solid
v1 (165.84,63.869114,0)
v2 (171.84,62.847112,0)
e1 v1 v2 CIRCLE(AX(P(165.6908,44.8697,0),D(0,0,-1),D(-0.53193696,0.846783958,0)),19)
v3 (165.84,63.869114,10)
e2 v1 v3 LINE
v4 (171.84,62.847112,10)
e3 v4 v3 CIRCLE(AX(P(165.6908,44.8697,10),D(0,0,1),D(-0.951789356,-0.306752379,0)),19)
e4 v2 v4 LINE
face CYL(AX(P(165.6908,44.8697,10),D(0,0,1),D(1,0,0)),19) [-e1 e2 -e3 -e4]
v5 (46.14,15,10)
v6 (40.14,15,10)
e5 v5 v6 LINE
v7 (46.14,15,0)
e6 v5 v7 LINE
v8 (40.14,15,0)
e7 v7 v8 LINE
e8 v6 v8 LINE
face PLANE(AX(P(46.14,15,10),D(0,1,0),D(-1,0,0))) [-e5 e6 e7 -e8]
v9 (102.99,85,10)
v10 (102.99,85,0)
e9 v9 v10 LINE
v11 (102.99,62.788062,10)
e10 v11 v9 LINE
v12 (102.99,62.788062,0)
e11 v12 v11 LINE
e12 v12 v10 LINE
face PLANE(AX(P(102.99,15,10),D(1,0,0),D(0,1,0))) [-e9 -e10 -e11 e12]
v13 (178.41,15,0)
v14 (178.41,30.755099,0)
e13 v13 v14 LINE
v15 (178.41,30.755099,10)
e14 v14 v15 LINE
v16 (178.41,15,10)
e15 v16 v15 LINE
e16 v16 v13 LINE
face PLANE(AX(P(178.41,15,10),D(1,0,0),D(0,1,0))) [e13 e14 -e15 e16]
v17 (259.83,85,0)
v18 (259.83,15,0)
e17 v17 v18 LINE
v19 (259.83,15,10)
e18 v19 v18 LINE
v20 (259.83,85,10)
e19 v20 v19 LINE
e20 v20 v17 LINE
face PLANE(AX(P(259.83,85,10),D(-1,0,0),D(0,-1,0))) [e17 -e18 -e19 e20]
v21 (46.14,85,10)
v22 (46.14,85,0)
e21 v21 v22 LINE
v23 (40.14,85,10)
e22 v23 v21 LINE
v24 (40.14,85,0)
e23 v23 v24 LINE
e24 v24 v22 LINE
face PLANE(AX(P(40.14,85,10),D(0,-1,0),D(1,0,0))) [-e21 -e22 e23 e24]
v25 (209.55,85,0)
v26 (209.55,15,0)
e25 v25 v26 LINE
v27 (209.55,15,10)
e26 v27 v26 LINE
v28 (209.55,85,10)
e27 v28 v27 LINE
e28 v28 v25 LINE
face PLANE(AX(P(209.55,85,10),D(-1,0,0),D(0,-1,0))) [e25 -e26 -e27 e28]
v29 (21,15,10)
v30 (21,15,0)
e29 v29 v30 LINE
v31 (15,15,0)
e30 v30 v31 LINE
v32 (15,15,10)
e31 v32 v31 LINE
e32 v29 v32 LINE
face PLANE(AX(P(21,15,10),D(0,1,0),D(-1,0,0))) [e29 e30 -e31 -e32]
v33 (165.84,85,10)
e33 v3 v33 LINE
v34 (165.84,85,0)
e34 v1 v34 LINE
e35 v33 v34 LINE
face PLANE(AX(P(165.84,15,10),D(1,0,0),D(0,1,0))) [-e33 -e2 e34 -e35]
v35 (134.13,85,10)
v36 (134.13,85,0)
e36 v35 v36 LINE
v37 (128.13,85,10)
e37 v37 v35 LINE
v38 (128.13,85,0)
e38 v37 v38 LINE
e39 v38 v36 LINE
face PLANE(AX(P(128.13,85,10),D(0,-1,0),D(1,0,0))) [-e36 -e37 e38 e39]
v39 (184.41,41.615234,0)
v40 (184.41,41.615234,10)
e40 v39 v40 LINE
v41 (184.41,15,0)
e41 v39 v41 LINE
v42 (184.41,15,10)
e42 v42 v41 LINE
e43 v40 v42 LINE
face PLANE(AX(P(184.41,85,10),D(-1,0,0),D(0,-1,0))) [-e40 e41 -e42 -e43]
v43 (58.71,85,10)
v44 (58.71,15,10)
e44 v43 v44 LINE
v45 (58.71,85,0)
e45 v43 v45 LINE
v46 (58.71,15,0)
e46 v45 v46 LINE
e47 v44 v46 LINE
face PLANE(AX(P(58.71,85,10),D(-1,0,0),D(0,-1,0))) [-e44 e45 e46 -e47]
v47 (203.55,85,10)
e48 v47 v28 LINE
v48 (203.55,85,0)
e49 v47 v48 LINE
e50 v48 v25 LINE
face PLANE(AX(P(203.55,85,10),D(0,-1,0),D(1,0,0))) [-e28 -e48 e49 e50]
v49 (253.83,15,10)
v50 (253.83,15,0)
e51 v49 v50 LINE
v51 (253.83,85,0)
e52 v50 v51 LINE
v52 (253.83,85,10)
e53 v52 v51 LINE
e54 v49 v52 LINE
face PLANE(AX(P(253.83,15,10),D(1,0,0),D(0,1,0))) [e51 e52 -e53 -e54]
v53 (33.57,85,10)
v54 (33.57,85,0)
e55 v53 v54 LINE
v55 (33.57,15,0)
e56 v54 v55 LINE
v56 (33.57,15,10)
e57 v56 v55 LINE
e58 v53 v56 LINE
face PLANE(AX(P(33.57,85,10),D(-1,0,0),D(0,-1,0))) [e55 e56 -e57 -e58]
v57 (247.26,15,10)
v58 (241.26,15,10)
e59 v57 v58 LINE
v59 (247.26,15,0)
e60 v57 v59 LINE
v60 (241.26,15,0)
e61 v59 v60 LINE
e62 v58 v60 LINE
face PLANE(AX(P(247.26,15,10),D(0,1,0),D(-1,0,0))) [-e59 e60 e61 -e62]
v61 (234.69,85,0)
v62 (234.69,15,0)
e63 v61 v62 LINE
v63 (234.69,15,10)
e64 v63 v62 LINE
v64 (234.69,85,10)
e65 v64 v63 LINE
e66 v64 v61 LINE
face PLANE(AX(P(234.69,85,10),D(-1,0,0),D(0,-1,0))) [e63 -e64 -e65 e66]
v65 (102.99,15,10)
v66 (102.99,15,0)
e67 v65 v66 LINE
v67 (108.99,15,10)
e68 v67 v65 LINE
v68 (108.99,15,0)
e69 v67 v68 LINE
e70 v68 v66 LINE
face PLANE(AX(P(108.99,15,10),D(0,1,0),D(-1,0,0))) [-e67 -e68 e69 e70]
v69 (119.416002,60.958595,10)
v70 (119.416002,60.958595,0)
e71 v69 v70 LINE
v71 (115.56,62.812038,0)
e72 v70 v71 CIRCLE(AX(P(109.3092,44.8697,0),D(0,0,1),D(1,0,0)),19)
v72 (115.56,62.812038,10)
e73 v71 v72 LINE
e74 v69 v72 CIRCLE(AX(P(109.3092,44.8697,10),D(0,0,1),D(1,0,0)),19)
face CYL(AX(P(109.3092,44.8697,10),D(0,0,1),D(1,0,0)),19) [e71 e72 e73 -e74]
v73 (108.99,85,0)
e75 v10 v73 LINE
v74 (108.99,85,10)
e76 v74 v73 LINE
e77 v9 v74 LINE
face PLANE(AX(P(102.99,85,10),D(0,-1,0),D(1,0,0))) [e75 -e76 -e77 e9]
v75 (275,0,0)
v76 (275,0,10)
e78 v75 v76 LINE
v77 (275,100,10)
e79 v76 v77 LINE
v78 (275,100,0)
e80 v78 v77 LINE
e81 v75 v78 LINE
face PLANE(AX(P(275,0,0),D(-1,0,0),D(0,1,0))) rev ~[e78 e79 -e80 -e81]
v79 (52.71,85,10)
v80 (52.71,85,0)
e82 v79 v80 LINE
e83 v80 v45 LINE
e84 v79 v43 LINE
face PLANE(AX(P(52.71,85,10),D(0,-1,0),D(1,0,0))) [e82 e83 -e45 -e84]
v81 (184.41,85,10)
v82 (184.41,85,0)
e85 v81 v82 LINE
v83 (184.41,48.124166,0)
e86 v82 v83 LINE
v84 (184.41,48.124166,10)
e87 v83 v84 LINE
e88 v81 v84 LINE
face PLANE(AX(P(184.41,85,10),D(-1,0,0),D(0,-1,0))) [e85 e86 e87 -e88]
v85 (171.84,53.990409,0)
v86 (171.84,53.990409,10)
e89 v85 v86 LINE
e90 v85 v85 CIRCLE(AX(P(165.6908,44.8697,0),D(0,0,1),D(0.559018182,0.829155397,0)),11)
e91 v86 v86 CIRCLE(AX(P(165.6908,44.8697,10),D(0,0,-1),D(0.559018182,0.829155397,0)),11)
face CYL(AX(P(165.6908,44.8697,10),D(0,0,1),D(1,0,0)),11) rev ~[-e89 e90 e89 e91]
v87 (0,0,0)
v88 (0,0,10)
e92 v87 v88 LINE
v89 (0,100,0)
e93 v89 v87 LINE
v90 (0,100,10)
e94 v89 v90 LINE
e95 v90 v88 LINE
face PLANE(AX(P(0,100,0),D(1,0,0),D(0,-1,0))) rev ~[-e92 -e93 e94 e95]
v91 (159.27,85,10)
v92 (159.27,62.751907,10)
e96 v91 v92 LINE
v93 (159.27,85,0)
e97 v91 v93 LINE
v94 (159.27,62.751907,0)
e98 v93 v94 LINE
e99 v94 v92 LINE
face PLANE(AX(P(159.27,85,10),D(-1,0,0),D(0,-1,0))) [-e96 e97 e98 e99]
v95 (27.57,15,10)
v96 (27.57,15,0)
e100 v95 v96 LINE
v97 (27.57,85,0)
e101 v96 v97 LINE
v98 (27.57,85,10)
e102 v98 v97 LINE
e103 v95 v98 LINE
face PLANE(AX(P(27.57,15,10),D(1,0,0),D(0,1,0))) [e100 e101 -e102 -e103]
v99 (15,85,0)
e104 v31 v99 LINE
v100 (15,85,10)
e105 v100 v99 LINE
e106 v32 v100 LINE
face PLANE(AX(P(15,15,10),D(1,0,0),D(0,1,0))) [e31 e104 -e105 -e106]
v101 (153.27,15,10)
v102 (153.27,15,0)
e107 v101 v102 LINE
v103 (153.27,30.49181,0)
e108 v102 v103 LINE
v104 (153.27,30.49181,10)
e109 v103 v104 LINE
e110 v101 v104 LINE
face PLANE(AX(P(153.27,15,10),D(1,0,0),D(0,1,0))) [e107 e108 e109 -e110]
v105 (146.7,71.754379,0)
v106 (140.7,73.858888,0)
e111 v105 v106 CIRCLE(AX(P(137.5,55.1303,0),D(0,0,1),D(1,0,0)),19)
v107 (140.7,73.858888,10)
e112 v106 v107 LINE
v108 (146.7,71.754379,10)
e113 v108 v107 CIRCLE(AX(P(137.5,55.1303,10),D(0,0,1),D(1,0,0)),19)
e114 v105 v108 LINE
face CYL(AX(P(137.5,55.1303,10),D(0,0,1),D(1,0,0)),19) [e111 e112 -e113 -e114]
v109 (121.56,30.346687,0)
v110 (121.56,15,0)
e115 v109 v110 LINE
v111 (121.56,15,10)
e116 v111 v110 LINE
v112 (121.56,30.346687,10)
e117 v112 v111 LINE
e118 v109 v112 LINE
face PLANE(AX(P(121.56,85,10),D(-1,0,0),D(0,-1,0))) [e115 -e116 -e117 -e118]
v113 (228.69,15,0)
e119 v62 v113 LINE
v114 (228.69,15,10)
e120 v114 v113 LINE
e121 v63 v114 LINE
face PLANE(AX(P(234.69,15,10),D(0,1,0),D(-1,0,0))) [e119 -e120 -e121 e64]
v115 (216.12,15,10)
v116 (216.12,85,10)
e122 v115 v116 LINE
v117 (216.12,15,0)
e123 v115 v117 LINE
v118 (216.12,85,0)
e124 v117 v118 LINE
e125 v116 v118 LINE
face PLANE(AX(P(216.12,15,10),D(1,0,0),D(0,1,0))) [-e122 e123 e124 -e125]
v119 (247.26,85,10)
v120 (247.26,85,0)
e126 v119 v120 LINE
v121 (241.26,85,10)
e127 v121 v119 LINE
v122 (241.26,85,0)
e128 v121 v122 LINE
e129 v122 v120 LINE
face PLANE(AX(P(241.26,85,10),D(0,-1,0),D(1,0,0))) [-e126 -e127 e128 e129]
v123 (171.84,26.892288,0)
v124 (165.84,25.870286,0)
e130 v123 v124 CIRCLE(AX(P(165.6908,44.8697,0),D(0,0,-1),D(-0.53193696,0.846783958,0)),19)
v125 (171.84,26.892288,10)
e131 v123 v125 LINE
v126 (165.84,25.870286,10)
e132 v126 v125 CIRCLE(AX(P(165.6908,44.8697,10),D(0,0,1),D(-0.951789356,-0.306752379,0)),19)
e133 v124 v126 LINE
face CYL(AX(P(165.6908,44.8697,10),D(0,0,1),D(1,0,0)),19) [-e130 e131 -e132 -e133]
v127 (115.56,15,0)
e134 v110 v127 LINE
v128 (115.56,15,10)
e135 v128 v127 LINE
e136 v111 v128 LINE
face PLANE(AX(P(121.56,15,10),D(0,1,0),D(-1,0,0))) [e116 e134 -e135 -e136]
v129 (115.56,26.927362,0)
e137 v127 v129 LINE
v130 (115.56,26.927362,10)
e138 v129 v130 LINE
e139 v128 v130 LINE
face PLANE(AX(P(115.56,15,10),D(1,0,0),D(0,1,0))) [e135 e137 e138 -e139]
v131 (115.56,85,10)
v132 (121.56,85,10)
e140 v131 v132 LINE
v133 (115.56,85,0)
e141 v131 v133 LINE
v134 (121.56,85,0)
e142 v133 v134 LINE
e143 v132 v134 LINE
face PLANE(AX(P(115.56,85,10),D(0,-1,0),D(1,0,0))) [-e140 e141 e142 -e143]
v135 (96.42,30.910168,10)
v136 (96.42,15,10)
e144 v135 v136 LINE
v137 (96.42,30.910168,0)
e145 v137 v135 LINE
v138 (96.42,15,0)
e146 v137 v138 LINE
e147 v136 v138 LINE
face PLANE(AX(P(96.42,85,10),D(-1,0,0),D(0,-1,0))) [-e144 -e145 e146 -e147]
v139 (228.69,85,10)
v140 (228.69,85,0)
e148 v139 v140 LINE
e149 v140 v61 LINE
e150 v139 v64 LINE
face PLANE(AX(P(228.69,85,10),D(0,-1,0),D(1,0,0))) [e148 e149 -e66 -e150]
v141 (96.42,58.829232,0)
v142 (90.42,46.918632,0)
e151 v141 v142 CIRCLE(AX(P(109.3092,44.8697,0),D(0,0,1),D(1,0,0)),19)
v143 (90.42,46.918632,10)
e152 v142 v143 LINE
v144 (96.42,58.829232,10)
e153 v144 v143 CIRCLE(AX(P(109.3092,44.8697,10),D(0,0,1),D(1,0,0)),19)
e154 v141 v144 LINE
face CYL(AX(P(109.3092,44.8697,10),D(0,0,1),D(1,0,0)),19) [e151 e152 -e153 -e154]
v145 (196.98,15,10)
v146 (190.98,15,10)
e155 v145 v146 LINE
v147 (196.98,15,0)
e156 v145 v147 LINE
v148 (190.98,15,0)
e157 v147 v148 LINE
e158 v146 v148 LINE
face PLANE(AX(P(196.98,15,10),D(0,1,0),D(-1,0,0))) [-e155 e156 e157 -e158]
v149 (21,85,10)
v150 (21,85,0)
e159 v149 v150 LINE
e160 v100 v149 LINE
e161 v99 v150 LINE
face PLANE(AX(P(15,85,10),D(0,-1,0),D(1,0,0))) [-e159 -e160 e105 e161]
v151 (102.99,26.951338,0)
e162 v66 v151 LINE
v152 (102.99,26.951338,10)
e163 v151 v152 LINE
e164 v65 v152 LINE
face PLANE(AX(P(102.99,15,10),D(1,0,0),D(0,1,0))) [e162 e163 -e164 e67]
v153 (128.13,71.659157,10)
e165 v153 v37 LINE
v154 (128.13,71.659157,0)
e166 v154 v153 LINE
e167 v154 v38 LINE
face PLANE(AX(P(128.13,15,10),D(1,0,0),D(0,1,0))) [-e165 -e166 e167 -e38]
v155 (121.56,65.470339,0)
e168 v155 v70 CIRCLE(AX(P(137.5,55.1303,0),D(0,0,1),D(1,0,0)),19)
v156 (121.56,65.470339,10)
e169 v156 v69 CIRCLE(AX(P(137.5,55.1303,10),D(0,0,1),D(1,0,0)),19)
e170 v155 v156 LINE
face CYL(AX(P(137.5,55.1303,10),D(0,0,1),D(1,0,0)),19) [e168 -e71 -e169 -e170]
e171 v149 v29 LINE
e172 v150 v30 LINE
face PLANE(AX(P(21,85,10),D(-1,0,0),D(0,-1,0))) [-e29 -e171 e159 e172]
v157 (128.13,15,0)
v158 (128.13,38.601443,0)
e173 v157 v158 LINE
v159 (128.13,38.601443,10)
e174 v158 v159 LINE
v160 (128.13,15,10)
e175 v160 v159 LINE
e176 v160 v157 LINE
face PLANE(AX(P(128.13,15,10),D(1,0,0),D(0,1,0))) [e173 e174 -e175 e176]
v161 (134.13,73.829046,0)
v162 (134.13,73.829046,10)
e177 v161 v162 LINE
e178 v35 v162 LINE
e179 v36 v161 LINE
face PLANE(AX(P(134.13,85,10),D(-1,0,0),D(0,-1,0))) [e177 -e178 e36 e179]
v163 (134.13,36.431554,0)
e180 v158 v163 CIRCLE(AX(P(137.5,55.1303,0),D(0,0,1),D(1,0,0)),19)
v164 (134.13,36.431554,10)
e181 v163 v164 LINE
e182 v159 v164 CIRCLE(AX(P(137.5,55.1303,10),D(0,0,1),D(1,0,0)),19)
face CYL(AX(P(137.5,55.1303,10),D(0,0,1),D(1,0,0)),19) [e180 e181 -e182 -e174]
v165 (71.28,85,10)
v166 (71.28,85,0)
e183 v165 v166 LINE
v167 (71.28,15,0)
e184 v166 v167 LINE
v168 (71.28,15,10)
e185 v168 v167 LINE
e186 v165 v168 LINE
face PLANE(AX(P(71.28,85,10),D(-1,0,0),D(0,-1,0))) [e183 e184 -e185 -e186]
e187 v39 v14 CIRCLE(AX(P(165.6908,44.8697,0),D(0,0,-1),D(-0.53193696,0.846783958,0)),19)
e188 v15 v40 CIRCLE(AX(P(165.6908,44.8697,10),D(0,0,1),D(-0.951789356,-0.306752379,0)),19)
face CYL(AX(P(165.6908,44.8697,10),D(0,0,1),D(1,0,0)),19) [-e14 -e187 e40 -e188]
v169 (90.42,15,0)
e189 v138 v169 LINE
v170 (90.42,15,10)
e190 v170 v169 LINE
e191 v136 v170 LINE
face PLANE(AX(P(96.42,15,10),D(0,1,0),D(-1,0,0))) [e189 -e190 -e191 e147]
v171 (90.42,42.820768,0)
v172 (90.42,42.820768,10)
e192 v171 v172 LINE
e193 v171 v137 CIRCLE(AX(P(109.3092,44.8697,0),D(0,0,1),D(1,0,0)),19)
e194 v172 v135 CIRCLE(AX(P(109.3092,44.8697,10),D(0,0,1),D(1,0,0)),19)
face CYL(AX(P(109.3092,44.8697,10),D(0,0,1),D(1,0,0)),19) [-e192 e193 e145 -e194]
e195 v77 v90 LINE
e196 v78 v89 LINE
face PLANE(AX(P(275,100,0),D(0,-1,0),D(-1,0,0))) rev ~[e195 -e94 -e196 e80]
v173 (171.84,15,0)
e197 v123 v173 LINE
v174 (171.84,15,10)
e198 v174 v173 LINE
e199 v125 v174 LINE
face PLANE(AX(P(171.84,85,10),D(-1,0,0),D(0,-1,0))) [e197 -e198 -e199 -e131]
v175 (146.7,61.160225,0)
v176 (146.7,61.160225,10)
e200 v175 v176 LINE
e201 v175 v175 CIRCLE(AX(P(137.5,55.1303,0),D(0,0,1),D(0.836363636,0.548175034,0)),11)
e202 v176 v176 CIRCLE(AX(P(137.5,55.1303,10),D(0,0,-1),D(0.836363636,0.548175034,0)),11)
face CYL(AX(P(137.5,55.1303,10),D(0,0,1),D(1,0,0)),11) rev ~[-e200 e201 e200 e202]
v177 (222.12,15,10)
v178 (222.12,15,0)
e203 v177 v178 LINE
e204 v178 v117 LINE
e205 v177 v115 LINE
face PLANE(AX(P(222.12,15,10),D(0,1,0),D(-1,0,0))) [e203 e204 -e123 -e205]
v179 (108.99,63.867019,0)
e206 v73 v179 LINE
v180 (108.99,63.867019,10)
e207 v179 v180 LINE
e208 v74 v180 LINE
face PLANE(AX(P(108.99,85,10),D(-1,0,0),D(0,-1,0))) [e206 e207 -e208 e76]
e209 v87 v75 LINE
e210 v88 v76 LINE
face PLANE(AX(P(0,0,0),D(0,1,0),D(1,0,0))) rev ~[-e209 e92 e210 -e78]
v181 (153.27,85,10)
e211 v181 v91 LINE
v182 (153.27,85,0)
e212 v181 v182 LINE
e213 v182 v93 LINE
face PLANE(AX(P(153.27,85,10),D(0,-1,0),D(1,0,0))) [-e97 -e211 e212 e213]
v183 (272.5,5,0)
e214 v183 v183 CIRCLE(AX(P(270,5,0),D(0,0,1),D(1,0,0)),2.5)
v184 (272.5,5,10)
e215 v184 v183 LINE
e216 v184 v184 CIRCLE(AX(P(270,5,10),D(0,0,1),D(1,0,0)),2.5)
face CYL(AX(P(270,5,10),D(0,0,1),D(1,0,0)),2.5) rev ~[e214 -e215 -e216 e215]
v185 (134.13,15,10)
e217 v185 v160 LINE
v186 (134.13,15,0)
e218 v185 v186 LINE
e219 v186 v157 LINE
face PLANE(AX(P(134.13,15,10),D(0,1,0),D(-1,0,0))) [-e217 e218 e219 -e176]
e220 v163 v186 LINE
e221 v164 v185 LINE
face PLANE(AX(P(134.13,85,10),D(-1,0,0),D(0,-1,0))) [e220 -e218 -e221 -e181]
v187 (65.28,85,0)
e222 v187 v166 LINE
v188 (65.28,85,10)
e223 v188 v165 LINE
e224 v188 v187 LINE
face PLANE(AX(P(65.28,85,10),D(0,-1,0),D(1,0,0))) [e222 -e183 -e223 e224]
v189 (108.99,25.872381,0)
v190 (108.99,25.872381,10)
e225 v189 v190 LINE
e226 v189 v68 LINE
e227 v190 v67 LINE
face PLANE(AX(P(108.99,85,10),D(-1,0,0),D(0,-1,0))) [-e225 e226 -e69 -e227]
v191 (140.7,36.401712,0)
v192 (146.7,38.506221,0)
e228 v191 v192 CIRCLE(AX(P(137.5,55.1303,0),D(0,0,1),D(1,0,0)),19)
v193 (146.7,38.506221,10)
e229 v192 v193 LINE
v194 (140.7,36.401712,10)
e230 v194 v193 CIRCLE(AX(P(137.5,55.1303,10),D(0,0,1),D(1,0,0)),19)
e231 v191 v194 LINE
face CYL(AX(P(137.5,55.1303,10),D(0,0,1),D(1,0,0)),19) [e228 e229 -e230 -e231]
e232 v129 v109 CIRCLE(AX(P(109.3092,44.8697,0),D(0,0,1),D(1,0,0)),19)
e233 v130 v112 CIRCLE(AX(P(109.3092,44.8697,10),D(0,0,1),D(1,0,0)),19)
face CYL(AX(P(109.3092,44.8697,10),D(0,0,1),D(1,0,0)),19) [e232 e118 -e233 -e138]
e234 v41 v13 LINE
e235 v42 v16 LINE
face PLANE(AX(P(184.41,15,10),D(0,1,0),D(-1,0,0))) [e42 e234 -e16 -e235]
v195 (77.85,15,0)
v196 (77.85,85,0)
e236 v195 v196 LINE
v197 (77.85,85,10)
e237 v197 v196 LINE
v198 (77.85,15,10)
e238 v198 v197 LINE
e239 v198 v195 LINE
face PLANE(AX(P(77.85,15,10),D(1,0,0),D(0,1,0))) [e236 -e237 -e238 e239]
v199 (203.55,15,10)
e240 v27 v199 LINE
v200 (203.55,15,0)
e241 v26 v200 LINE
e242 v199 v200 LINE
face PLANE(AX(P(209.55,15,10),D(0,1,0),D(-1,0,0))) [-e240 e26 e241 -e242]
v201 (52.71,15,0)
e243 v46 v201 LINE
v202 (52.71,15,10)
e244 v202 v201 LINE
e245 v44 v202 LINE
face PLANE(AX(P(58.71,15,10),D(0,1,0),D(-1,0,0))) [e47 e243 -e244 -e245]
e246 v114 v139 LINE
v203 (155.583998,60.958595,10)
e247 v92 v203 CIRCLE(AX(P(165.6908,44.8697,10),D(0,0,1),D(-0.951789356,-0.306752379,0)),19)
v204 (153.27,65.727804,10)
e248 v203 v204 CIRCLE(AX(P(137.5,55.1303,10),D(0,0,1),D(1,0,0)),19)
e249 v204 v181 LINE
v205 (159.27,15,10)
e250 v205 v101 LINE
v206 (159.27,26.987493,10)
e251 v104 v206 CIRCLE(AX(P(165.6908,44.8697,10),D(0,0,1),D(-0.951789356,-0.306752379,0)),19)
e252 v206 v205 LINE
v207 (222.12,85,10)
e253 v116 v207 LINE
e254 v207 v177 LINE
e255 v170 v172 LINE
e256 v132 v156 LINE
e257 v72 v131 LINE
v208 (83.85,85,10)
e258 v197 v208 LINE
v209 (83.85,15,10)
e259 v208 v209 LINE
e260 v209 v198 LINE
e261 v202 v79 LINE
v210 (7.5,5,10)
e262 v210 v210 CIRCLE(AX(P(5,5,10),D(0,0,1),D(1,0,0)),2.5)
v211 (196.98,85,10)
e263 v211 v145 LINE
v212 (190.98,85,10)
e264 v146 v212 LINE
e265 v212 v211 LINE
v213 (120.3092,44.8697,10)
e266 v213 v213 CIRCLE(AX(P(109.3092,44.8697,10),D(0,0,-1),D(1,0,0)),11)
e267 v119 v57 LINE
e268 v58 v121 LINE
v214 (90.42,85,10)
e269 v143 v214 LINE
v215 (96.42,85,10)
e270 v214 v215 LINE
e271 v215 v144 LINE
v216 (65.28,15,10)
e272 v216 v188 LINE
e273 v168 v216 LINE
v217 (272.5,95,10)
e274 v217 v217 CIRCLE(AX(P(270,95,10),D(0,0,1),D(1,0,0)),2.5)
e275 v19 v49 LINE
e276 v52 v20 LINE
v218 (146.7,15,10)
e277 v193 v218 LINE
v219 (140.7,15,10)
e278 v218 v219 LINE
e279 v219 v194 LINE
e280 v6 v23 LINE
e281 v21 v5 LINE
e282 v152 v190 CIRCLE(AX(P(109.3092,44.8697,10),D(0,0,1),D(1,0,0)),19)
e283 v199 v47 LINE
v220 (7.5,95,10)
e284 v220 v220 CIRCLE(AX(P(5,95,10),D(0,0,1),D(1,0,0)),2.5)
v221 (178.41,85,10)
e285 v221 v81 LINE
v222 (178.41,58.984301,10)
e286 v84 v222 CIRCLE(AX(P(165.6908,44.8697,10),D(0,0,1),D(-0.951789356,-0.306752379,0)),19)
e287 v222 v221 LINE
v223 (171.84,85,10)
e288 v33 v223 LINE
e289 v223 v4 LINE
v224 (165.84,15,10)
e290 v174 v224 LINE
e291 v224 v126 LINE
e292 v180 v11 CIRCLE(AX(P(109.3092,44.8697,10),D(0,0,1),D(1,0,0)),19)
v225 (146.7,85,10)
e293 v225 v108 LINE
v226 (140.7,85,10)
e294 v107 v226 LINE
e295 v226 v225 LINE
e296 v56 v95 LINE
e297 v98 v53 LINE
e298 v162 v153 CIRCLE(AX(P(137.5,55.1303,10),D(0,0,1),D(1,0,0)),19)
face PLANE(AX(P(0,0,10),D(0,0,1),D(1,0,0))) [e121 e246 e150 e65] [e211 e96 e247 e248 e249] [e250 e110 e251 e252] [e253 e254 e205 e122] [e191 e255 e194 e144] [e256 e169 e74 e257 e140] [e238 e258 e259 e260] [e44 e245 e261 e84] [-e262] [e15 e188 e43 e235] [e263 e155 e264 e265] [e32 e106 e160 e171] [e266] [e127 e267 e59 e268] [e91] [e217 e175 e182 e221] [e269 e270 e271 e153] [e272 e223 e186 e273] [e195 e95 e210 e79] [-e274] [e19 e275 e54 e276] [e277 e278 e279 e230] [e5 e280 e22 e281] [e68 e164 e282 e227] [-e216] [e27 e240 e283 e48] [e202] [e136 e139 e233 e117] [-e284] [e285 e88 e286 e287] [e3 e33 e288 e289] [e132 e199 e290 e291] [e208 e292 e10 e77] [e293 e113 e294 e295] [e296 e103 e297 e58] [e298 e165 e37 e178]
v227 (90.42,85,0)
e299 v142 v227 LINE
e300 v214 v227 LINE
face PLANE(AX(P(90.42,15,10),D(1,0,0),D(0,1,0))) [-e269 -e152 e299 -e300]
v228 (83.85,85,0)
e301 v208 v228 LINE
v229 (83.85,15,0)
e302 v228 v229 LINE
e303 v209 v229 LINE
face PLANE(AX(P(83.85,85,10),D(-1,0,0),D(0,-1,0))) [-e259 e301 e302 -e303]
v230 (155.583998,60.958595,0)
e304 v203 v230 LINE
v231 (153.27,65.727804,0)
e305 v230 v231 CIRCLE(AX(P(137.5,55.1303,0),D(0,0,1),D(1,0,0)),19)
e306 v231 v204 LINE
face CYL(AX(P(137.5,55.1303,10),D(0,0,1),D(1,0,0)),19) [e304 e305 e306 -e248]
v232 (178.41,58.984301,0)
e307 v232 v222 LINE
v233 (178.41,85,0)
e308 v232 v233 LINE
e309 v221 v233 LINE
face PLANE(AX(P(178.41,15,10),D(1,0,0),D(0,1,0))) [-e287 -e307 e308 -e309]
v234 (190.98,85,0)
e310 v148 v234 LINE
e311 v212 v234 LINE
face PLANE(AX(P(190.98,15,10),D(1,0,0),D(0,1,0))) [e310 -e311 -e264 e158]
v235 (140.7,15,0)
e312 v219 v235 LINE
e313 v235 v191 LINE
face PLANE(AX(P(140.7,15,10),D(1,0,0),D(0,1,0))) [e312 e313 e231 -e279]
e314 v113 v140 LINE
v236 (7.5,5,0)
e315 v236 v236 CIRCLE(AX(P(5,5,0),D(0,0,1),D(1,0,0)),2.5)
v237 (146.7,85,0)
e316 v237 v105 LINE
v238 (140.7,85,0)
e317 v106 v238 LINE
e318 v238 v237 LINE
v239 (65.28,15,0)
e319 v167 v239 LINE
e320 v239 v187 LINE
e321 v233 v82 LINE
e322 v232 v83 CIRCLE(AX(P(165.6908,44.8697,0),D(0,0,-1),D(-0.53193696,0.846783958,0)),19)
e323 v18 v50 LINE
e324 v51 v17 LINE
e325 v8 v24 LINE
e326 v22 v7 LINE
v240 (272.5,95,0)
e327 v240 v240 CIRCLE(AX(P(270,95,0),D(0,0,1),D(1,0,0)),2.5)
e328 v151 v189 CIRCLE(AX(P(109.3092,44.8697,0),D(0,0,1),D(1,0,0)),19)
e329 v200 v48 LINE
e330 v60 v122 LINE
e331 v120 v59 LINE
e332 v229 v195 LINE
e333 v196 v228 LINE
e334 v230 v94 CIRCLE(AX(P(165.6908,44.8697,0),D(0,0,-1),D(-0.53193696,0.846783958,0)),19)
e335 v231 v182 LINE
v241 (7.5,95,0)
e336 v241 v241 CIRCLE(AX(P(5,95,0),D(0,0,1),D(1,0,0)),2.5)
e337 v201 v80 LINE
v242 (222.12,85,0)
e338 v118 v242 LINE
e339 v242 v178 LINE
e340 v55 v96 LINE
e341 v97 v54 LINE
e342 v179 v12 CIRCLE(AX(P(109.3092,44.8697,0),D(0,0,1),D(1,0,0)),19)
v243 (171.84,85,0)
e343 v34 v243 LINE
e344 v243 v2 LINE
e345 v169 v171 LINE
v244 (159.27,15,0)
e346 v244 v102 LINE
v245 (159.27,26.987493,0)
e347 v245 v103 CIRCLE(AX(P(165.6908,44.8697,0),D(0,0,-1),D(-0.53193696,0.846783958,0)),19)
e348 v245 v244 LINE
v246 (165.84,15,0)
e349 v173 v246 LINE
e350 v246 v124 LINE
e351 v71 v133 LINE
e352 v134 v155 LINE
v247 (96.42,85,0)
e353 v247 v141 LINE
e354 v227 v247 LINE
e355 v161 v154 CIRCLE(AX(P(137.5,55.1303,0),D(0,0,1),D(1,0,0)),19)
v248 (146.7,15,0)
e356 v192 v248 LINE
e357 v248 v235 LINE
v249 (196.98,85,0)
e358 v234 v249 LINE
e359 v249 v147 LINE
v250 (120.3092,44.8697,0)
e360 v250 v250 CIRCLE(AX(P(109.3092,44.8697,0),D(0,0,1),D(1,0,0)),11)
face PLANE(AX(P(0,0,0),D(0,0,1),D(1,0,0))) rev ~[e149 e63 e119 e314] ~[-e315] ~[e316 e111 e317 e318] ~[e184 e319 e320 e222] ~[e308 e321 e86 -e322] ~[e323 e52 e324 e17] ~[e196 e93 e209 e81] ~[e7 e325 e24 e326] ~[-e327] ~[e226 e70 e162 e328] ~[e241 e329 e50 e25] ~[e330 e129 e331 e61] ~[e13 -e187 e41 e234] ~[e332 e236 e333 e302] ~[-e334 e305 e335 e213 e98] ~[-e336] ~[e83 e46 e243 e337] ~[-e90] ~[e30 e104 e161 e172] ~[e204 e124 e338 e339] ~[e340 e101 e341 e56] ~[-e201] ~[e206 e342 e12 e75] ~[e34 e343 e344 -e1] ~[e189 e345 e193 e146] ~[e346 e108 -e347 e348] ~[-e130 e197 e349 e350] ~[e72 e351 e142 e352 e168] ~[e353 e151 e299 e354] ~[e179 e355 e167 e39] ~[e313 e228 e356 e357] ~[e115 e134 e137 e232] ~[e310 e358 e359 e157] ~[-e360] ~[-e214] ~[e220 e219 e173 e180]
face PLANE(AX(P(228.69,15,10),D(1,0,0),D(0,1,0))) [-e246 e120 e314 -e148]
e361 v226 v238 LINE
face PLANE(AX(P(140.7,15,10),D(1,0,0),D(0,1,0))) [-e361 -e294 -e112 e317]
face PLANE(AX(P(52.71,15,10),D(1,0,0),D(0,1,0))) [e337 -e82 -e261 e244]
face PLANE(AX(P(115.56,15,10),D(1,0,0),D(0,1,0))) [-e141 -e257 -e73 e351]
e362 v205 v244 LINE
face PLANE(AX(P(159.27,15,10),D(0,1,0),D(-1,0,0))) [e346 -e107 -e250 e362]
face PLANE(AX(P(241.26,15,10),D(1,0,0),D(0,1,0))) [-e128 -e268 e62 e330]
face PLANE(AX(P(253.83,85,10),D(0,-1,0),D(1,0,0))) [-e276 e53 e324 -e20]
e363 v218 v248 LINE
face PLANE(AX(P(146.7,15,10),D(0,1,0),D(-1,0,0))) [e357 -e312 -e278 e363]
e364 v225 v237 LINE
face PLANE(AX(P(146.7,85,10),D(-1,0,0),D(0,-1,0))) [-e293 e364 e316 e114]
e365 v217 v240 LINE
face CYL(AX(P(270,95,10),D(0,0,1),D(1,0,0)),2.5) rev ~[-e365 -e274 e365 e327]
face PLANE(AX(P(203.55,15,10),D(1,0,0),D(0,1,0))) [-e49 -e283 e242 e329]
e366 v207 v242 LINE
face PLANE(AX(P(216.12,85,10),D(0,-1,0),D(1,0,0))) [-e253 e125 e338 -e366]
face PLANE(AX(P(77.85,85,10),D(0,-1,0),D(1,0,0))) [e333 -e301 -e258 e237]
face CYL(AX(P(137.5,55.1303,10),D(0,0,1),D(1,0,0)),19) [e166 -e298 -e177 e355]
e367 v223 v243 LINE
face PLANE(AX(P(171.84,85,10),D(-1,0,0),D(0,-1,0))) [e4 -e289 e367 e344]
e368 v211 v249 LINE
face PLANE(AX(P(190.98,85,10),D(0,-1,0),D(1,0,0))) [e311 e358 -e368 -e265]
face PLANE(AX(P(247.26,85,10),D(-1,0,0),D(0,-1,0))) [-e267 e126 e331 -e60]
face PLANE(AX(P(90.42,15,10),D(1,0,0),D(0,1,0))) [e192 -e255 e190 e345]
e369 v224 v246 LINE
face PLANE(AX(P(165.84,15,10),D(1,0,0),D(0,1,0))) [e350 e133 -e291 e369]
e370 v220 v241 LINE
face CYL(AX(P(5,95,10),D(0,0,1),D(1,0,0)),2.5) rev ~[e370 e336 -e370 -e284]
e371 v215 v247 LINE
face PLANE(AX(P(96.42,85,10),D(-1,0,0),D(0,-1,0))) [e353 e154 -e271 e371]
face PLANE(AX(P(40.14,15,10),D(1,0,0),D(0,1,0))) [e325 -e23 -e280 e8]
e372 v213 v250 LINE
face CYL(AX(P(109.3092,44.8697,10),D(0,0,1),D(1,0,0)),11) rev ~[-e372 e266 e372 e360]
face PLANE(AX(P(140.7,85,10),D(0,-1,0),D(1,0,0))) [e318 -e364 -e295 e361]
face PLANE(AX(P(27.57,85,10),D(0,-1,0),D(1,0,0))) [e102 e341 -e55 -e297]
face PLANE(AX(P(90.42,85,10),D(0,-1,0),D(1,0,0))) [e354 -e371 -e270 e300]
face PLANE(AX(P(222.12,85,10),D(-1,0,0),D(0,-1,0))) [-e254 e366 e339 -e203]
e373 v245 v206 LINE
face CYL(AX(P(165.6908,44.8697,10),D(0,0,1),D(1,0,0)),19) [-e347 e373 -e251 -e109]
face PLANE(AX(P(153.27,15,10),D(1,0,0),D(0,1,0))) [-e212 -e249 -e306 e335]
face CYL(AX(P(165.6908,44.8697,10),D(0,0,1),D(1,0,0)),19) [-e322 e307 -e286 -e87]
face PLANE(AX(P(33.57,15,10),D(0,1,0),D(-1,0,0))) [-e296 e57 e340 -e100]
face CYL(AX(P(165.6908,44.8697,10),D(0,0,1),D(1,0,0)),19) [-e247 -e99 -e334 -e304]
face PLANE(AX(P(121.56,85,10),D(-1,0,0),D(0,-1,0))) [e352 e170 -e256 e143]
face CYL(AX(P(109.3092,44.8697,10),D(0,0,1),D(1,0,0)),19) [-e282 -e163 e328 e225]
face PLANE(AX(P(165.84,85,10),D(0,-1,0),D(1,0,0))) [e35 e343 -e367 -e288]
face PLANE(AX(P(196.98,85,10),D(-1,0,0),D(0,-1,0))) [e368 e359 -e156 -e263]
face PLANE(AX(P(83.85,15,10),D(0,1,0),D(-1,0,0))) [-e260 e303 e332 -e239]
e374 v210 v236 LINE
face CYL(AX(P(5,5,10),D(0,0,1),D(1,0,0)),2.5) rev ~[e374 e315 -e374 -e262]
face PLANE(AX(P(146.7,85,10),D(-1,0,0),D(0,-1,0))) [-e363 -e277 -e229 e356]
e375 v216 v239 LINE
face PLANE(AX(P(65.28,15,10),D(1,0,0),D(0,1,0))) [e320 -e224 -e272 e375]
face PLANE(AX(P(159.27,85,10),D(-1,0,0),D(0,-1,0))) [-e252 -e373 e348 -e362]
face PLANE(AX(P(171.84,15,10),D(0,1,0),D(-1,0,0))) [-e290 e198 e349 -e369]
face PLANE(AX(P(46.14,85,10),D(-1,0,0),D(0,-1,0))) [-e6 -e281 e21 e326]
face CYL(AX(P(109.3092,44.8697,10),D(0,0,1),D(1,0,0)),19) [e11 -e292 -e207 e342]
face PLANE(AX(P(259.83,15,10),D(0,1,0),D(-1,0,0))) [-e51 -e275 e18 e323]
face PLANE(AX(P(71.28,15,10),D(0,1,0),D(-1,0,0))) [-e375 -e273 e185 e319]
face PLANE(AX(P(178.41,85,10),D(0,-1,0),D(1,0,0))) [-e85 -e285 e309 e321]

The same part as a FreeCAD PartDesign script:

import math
import FreeCAD as App
import Part
import Sketcher

V = App.Vector

doc = App.newDocument("Part")
body = doc.addObject("PartDesign::Body", "Body")

sketch1 = doc.addObject("Sketcher::SketchObject", "Sketch")
body.addObject(sketch1)
sketch1.AttachmentSupport = (doc.XY_Plane, [""])
sketch1.MapMode = "FlatFace"
sketch1.addGeometry([
    Part.LineSegment(V(0, 100, 0), V(0, 0, 0)),
    Part.LineSegment(V(0, 0, 0), V(275, 0, 0)),
    Part.LineSegment(V(275, 0, 0), V(275, 100, 0)),
    Part.LineSegment(V(275, 100, 0), V(0, 100, 0)),
], False)
sketch1.addConstraint([
    Sketcher.Constraint("Coincident", 0, 2, 1, 1),
    Sketcher.Constraint("Coincident", 1, 2, 2, 1),
    Sketcher.Constraint("Coincident", 2, 2, 3, 1),
    Sketcher.Constraint("Coincident", 3, 2, 0, 1),
    Sketcher.Constraint("Vertical", 0),
    Sketcher.Constraint("Horizontal", 1),
    Sketcher.Constraint("Vertical", 2),
    Sketcher.Constraint("Horizontal", 3),
    Sketcher.Constraint("Coincident", 0, 2, -1, 1),
    Sketcher.Constraint("DistanceX", 1, 1, 1, 2, 275.0),
    Sketcher.Constraint("DistanceY", 0, 2, 0, 1, 100.0),
])
pad1 = doc.addObject("PartDesign::Pad", "Pad")
body.addObject(pad1)
pad1.Profile = sketch1
pad1.Length = 10

sketch2 = doc.addObject("Sketcher::SketchObject", "Sketch001")
body.addObject(sketch2)
sketch2.AttachmentSupport = (doc.XY_Plane, [""])
sketch2.MapMode = "FlatFace"
sketch2.AttachmentOffset = App.Placement(V(0, 0, 10), App.Rotation())
sketch2.addGeometry([
    Part.Circle(V(5, 95, 0), V(0, 0, 1), 2.5),
    Part.Circle(V(270, 95, 0), V(0, 0, 1), 2.5),
    Part.Circle(V(270, 5, 0), V(0, 0, 1), 2.5),
    Part.Circle(V(5, 5, 0), V(0, 0, 1), 2.5),
    Part.LineSegment(V(21, 85, 0), V(15, 85, 0)),
    Part.LineSegment(V(15, 85, 0), V(15, 15, 0)),
    Part.LineSegment(V(15, 15, 0), V(21, 15, 0)),
    Part.LineSegment(V(21, 15, 0), V(21, 85, 0)),
    Part.LineSegment(V(33.6, 15, 0), V(33.6, 85, 0)),
    Part.LineSegment(V(33.6, 85, 0), V(27.6, 85, 0)),
    Part.LineSegment(V(27.6, 85, 0), V(27.6, 15, 0)),
    Part.LineSegment(V(27.6, 15, 0), V(33.6, 15, 0)),
    Part.LineSegment(V(46.1, 15, 0), V(46.1, 85, 0)),
    Part.LineSegment(V(46.1, 85, 0), V(40.1, 85, 0)),
    Part.LineSegment(V(40.1, 85, 0), V(40.1, 15, 0)),
    Part.LineSegment(V(40.1, 15, 0), V(46.1, 15, 0)),
    Part.LineSegment(V(58.7, 15, 0), V(58.7, 85, 0)),
    Part.LineSegment(V(58.7, 85, 0), V(52.7, 85, 0)),
    Part.LineSegment(V(52.7, 85, 0), V(52.7, 15, 0)),
    Part.LineSegment(V(52.7, 15, 0), V(58.7, 15, 0)),
    Part.LineSegment(V(71.3, 15, 0), V(71.3, 85, 0)),
    Part.LineSegment(V(71.3, 85, 0), V(65.3, 85, 0)),
    Part.LineSegment(V(65.3, 85, 0), V(65.3, 15, 0)),
    Part.LineSegment(V(65.3, 15, 0), V(71.3, 15, 0)),
    Part.LineSegment(V(83.8, 15, 0), V(83.8, 85, 0)),
    Part.LineSegment(V(83.8, 85, 0), V(77.8, 85, 0)),
    Part.LineSegment(V(77.8, 85, 0), V(77.8, 15, 0)),
    Part.LineSegment(V(77.8, 15, 0), V(83.8, 15, 0)),
    Part.LineSegment(V(96.4, 15, 0), V(96.4, 85, 0)),
    Part.LineSegment(V(96.4, 85, 0), V(90.4, 85, 0)),
    Part.LineSegment(V(90.4, 85, 0), V(90.4, 15, 0)),
    Part.LineSegment(V(90.4, 15, 0), V(96.4, 15, 0)),
    Part.LineSegment(V(109, 15, 0), V(109, 85, 0)),
    Part.LineSegment(V(109, 85, 0), V(103, 85, 0)),
    Part.LineSegment(V(103, 85, 0), V(103, 15, 0)),
    Part.LineSegment(V(103, 15, 0), V(109, 15, 0)),
    Part.LineSegment(V(121.6, 15, 0), V(121.6, 85, 0)),
    Part.LineSegment(V(121.6, 85, 0), V(115.6, 85, 0)),
    Part.LineSegment(V(115.6, 85, 0), V(115.6, 15, 0)),
    Part.LineSegment(V(115.6, 15, 0), V(121.6, 15, 0)),
    Part.LineSegment(V(134.1, 15, 0), V(134.1, 85, 0)),
    Part.LineSegment(V(134.1, 85, 0), V(128.1, 85, 0)),
    Part.LineSegment(V(128.1, 85, 0), V(128.1, 15, 0)),
    Part.LineSegment(V(128.1, 15, 0), V(134.1, 15, 0)),
    Part.LineSegment(V(146.7, 15, 0), V(146.7, 85, 0)),
    Part.LineSegment(V(146.7, 85, 0), V(140.7, 85, 0)),
    Part.LineSegment(V(140.7, 85, 0), V(140.7, 15, 0)),
    Part.LineSegment(V(140.7, 15, 0), V(146.7, 15, 0)),
    Part.LineSegment(V(159.3, 15, 0), V(159.3, 85, 0)),
    Part.LineSegment(V(159.3, 85, 0), V(153.3, 85, 0)),
    Part.LineSegment(V(153.3, 85, 0), V(153.3, 15, 0)),
    Part.LineSegment(V(153.3, 15, 0), V(159.3, 15, 0)),
    Part.LineSegment(V(171.8, 15, 0), V(171.8, 85, 0)),
    Part.LineSegment(V(171.8, 85, 0), V(165.8, 85, 0)),
    Part.LineSegment(V(165.8, 85, 0), V(165.8, 15, 0)),
    Part.LineSegment(V(165.8, 15, 0), V(171.8, 15, 0)),
    Part.LineSegment(V(184.4, 15, 0), V(184.4, 85, 0)),
    Part.LineSegment(V(184.4, 85, 0), V(178.4, 85, 0)),
    Part.LineSegment(V(178.4, 85, 0), V(178.4, 15, 0)),
    Part.LineSegment(V(178.4, 15, 0), V(184.4, 15, 0)),
    Part.LineSegment(V(197, 15, 0), V(197, 85, 0)),
    Part.LineSegment(V(197, 85, 0), V(191, 85, 0)),
    Part.LineSegment(V(191, 85, 0), V(191, 15, 0)),
    Part.LineSegment(V(191, 15, 0), V(197, 15, 0)),
    Part.LineSegment(V(209.6, 15, 0), V(209.6, 85, 0)),
    Part.LineSegment(V(209.6, 85, 0), V(203.6, 85, 0)),
    Part.LineSegment(V(203.6, 85, 0), V(203.6, 15, 0)),
    Part.LineSegment(V(203.6, 15, 0), V(209.6, 15, 0)),
    Part.LineSegment(V(222.1, 15, 0), V(222.1, 85, 0)),
    Part.LineSegment(V(222.1, 85, 0), V(216.1, 85, 0)),
    Part.LineSegment(V(216.1, 85, 0), V(216.1, 15, 0)),
    Part.LineSegment(V(216.1, 15, 0), V(222.1, 15, 0)),
    Part.LineSegment(V(234.7, 15, 0), V(234.7, 85, 0)),
    Part.LineSegment(V(234.7, 85, 0), V(228.7, 85, 0)),
    Part.LineSegment(V(228.7, 85, 0), V(228.7, 15, 0)),
    Part.LineSegment(V(228.7, 15, 0), V(234.7, 15, 0)),
    Part.LineSegment(V(247.3, 15, 0), V(247.3, 85, 0)),
    Part.LineSegment(V(247.3, 85, 0), V(241.3, 85, 0)),
    Part.LineSegment(V(241.3, 85, 0), V(241.3, 15, 0)),
    Part.LineSegment(V(241.3, 15, 0), V(247.3, 15, 0)),
    Part.LineSegment(V(259.8, 15, 0), V(259.8, 85, 0)),
    Part.LineSegment(V(259.8, 85, 0), V(253.8, 85, 0)),
    Part.LineSegment(V(253.8, 85, 0), V(253.8, 15, 0)),
    Part.LineSegment(V(253.8, 15, 0), V(259.8, 15, 0)),
], False)
sketch2.addConstraint([
    Sketcher.Constraint("Coincident", 4, 2, 5, 1),
    Sketcher.Constraint("Coincident", 5, 2, 6, 1),
    Sketcher.Constraint("Coincident", 6, 2, 7, 1),
    Sketcher.Constraint("Coincident", 7, 2, 4, 1),
    Sketcher.Constraint("Coincident", 8, 2, 9, 1),
    Sketcher.Constraint("Coincident", 9, 2, 10, 1),
    Sketcher.Constraint("Coincident", 10, 2, 11, 1),
    Sketcher.Constraint("Coincident", 11, 2, 8, 1),
    Sketcher.Constraint("Coincident", 12, 2, 13, 1),
    Sketcher.Constraint("Coincident", 13, 2, 14, 1),
    Sketcher.Constraint("Coincident", 14, 2, 15, 1),
    Sketcher.Constraint("Coincident", 15, 2, 12, 1),
    Sketcher.Constraint("Coincident", 16, 2, 17, 1),
    Sketcher.Constraint("Coincident", 17, 2, 18, 1),
    Sketcher.Constraint("Coincident", 18, 2, 19, 1),
    Sketcher.Constraint("Coincident", 19, 2, 16, 1),
    Sketcher.Constraint("Coincident", 20, 2, 21, 1),
    Sketcher.Constraint("Coincident", 21, 2, 22, 1),
    Sketcher.Constraint("Coincident", 22, 2, 23, 1),
    Sketcher.Constraint("Coincident", 23, 2, 20, 1),
    Sketcher.Constraint("Coincident", 24, 2, 25, 1),
    Sketcher.Constraint("Coincident", 25, 2, 26, 1),
    Sketcher.Constraint("Coincident", 26, 2, 27, 1),
    Sketcher.Constraint("Coincident", 27, 2, 24, 1),
    Sketcher.Constraint("Coincident", 28, 2, 29, 1),
    Sketcher.Constraint("Coincident", 29, 2, 30, 1),
    Sketcher.Constraint("Coincident", 30, 2, 31, 1),
    Sketcher.Constraint("Coincident", 31, 2, 28, 1),
    Sketcher.Constraint("Coincident", 32, 2, 33, 1),
    Sketcher.Constraint("Coincident", 33, 2, 34, 1),
    Sketcher.Constraint("Coincident", 34, 2, 35, 1),
    Sketcher.Constraint("Coincident", 35, 2, 32, 1),
    Sketcher.Constraint("Coincident", 36, 2, 37, 1),
    Sketcher.Constraint("Coincident", 37, 2, 38, 1),
    Sketcher.Constraint("Coincident", 38, 2, 39, 1),
    Sketcher.Constraint("Coincident", 39, 2, 36, 1),
    Sketcher.Constraint("Coincident", 40, 2, 41, 1),
    Sketcher.Constraint("Coincident", 41, 2, 42, 1),
    Sketcher.Constraint("Coincident", 42, 2, 43, 1),
    Sketcher.Constraint("Coincident", 43, 2, 40, 1),
    Sketcher.Constraint("Coincident", 44, 2, 45, 1),
    Sketcher.Constraint("Coincident", 45, 2, 46, 1),
    Sketcher.Constraint("Coincident", 46, 2, 47, 1),
    Sketcher.Constraint("Coincident", 47, 2, 44, 1),
    Sketcher.Constraint("Coincident", 48, 2, 49, 1),
    Sketcher.Constraint("Coincident", 49, 2, 50, 1),
    Sketcher.Constraint("Coincident", 50, 2, 51, 1),
    Sketcher.Constraint("Coincident", 51, 2, 48, 1),
    Sketcher.Constraint("Coincident", 52, 2, 53, 1),
    Sketcher.Constraint("Coincident", 53, 2, 54, 1),
    Sketcher.Constraint("Coincident", 54, 2, 55, 1),
    Sketcher.Constraint("Coincident", 55, 2, 52, 1),
    Sketcher.Constraint("Coincident", 56, 2, 57, 1),
    Sketcher.Constraint("Coincident", 57, 2, 58, 1),
    Sketcher.Constraint("Coincident", 58, 2, 59, 1),
    Sketcher.Constraint("Coincident", 59, 2, 56, 1),
    Sketcher.Constraint("Coincident", 60, 2, 61, 1),
    Sketcher.Constraint("Coincident", 61, 2, 62, 1),
    Sketcher.Constraint("Coincident", 62, 2, 63, 1),
    Sketcher.Constraint("Coincident", 63, 2, 60, 1),
    Sketcher.Constraint("Coincident", 64, 2, 65, 1),
    Sketcher.Constraint("Coincident", 65, 2, 66, 1),
    Sketcher.Constraint("Coincident", 66, 2, 67, 1),
    Sketcher.Constraint("Coincident", 67, 2, 64, 1),
    Sketcher.Constraint("Coincident", 68, 2, 69, 1),
    Sketcher.Constraint("Coincident", 69, 2, 70, 1),
    Sketcher.Constraint("Coincident", 70, 2, 71, 1),
    Sketcher.Constraint("Coincident", 71, 2, 68, 1),
    Sketcher.Constraint("Coincident", 72, 2, 73, 1),
    Sketcher.Constraint("Coincident", 73, 2, 74, 1),
    Sketcher.Constraint("Coincident", 74, 2, 75, 1),
    Sketcher.Constraint("Coincident", 75, 2, 72, 1),
    Sketcher.Constraint("Coincident", 76, 2, 77, 1),
    Sketcher.Constraint("Coincident", 77, 2, 78, 1),
    Sketcher.Constraint("Coincident", 78, 2, 79, 1),
    Sketcher.Constraint("Coincident", 79, 2, 76, 1),
    Sketcher.Constraint("Coincident", 80, 2, 81, 1),
    Sketcher.Constraint("Coincident", 81, 2, 82, 1),
    Sketcher.Constraint("Coincident", 82, 2, 83, 1),
    Sketcher.Constraint("Coincident", 83, 2, 80, 1),
    Sketcher.Constraint("Horizontal", 4),
    Sketcher.Constraint("Vertical", 5),
    Sketcher.Constraint("Horizontal", 6),
    Sketcher.Constraint("Vertical", 7),
    Sketcher.Constraint("Vertical", 8),
    Sketcher.Constraint("Horizontal", 9),
    Sketcher.Constraint("Vertical", 10),
    Sketcher.Constraint("Horizontal", 11),
    Sketcher.Constraint("Vertical", 12),
    Sketcher.Constraint("Horizontal", 13),
    Sketcher.Constraint("Vertical", 14),
    Sketcher.Constraint("Horizontal", 15),
    Sketcher.Constraint("Vertical", 16),
    Sketcher.Constraint("Horizontal", 17),
    Sketcher.Constraint("Vertical", 18),
    Sketcher.Constraint("Horizontal", 19),
    Sketcher.Constraint("Vertical", 20),
    Sketcher.Constraint("Horizontal", 21),
    Sketcher.Constraint("Vertical", 22),
    Sketcher.Constraint("Horizontal", 23),
    Sketcher.Constraint("Vertical", 24),
    Sketcher.Constraint("Horizontal", 25),
    Sketcher.Constraint("Vertical", 26),
    Sketcher.Constraint("Horizontal", 27),
    Sketcher.Constraint("Vertical", 28),
    Sketcher.Constraint("Horizontal", 29),
    Sketcher.Constraint("Vertical", 30),
    Sketcher.Constraint("Horizontal", 31),
    Sketcher.Constraint("Vertical", 32),
    Sketcher.Constraint("Horizontal", 33),
    Sketcher.Constraint("Vertical", 34),
    Sketcher.Constraint("Horizontal", 35),
    Sketcher.Constraint("Vertical", 36),
    Sketcher.Constraint("Horizontal", 37),
    Sketcher.Constraint("Vertical", 38),
    Sketcher.Constraint("Horizontal", 39),
    Sketcher.Constraint("Vertical", 40),
    Sketcher.Constraint("Horizontal", 41),
    Sketcher.Constraint("Vertical", 42),
    Sketcher.Constraint("Horizontal", 43),
    Sketcher.Constraint("Vertical", 44),
    Sketcher.Constraint("Horizontal", 45),
    Sketcher.Constraint("Vertical", 46),
    Sketcher.Constraint("Horizontal", 47),
    Sketcher.Constraint("Vertical", 48),
    Sketcher.Constraint("Horizontal", 49),
    Sketcher.Constraint("Vertical", 50),
    Sketcher.Constraint("Horizontal", 51),
    Sketcher.Constraint("Vertical", 52),
    Sketcher.Constraint("Horizontal", 53),
    Sketcher.Constraint("Vertical", 54),
    Sketcher.Constraint("Horizontal", 55),
    Sketcher.Constraint("Vertical", 56),
    Sketcher.Constraint("Horizontal", 57),
    Sketcher.Constraint("Vertical", 58),
    Sketcher.Constraint("Horizontal", 59),
    Sketcher.Constraint("Vertical", 60),
    Sketcher.Constraint("Horizontal", 61),
    Sketcher.Constraint("Vertical", 62),
    Sketcher.Constraint("Horizontal", 63),
    Sketcher.Constraint("Vertical", 64),
    Sketcher.Constraint("Horizontal", 65),
    Sketcher.Constraint("Vertical", 66),
    Sketcher.Constraint("Horizontal", 67),
    Sketcher.Constraint("Vertical", 68),
    Sketcher.Constraint("Horizontal", 69),
    Sketcher.Constraint("Vertical", 70),
    Sketcher.Constraint("Horizontal", 71),
    Sketcher.Constraint("Vertical", 72),
    Sketcher.Constraint("Horizontal", 73),
    Sketcher.Constraint("Vertical", 74),
    Sketcher.Constraint("Horizontal", 75),
    Sketcher.Constraint("Vertical", 76),
    Sketcher.Constraint("Horizontal", 77),
    Sketcher.Constraint("Vertical", 78),
    Sketcher.Constraint("Horizontal", 79),
    Sketcher.Constraint("Vertical", 80),
    Sketcher.Constraint("Horizontal", 81),
    Sketcher.Constraint("Vertical", 82),
    Sketcher.Constraint("Horizontal", 83),
    Sketcher.Constraint("Equal", 0, 1),
    Sketcher.Constraint("Equal", 1, 2),
    Sketcher.Constraint("Equal", 2, 3),
    Sketcher.Constraint("Horizontal", 0, 3, 1, 3),
    Sketcher.Constraint("Horizontal", 2, 3, 3, 3),
    Sketcher.Constraint("Horizontal", 7, 2, 8, 2),
    Sketcher.Constraint("Horizontal", 6, 2, 10, 2),
    Sketcher.Constraint("Horizontal", 9, 2, 12, 2),
    Sketcher.Constraint("Horizontal", 11, 2, 14, 2),
    Sketcher.Constraint("Horizontal", 13, 2, 16, 2),
    Sketcher.Constraint("Horizontal", 15, 2, 18, 2),
    Sketcher.Constraint("Horizontal", 17, 2, 20, 2),
    Sketcher.Constraint("Horizontal", 19, 2, 22, 2),
    Sketcher.Constraint("Horizontal", 21, 2, 24, 2),
    Sketcher.Constraint("Horizontal", 23, 2, 26, 2),
    Sketcher.Constraint("Horizontal", 25, 2, 28, 2),
    Sketcher.Constraint("Horizontal", 27, 2, 30, 2),
    Sketcher.Constraint("Horizontal", 29, 2, 32, 2),
    Sketcher.Constraint("Horizontal", 31, 2, 34, 2),
    Sketcher.Constraint("Horizontal", 33, 2, 36, 2),
    Sketcher.Constraint("Horizontal", 35, 2, 38, 2),
    Sketcher.Constraint("Horizontal", 37, 2, 40, 2),
    Sketcher.Constraint("Horizontal", 39, 2, 42, 2),
    Sketcher.Constraint("Horizontal", 41, 2, 44, 2),
    Sketcher.Constraint("Horizontal", 43, 2, 46, 2),
    Sketcher.Constraint("Horizontal", 45, 2, 48, 2),
    Sketcher.Constraint("Horizontal", 47, 2, 50, 2),
    Sketcher.Constraint("Horizontal", 49, 2, 52, 2),
    Sketcher.Constraint("Horizontal", 51, 2, 54, 2),
    Sketcher.Constraint("Horizontal", 53, 2, 56, 2),
    Sketcher.Constraint("Horizontal", 55, 2, 58, 2),
    Sketcher.Constraint("Horizontal", 57, 2, 60, 2),
    Sketcher.Constraint("Horizontal", 59, 2, 62, 2),
    Sketcher.Constraint("Horizontal", 61, 2, 64, 2),
    Sketcher.Constraint("Horizontal", 63, 2, 66, 2),
    Sketcher.Constraint("Horizontal", 65, 2, 68, 2),
    Sketcher.Constraint("Horizontal", 67, 2, 70, 2),
    Sketcher.Constraint("Horizontal", 69, 2, 72, 2),
    Sketcher.Constraint("Horizontal", 71, 2, 74, 2),
    Sketcher.Constraint("Horizontal", 73, 2, 76, 2),
    Sketcher.Constraint("Horizontal", 75, 2, 78, 2),
    Sketcher.Constraint("Horizontal", 77, 2, 80, 2),
    Sketcher.Constraint("Horizontal", 79, 2, 82, 2),
    Sketcher.Constraint("Vertical", 1, 3, 2, 3),
    Sketcher.Constraint("Vertical", 0, 3, 3, 3),
    Sketcher.Constraint("Equal", 6, 9),
    Sketcher.Constraint("Equal", 11, 13),
    Sketcher.Constraint("Equal", 15, 17),
    Sketcher.Constraint("Equal", 19, 21),
    Sketcher.Constraint("Equal", 23, 25),
    Sketcher.Constraint("Equal", 27, 29),
    Sketcher.Constraint("Equal", 31, 33),
    Sketcher.Constraint("Equal", 35, 37),
    Sketcher.Constraint("Equal", 39, 41),
    Sketcher.Constraint("Equal", 43, 45),
    Sketcher.Constraint("Equal", 47, 49),
    Sketcher.Constraint("Equal", 51, 53),
    Sketcher.Constraint("Equal", 55, 57),
    Sketcher.Constraint("Equal", 59, 61),
    Sketcher.Constraint("Equal", 63, 65),
    Sketcher.Constraint("Equal", 67, 69),
    Sketcher.Constraint("Equal", 71, 73),
    Sketcher.Constraint("Equal", 75, 77),
    Sketcher.Constraint("Equal", 79, 81),
    Sketcher.Constraint("Diameter", 0, 5.0),
    Sketcher.Constraint("DistanceX", 4, 2, 4, 1, 6.0),
    Sketcher.Constraint("DistanceX", -1, 1, 0, 3, 5.0),
    Sketcher.Constraint("DistanceY", -1, 1, 2, 3, 5.0),
    Sketcher.Constraint("DistanceX", -1, 1, 4, 2, 15.0),
    Sketcher.Constraint("DistanceY", -1, 1, 5, 2, 15.0),
    Sketcher.Constraint("DistanceY", 5, 2, 5, 1, 70.0),
    Sketcher.Constraint("DistanceY", -1, 1, 0, 3, 95.0),
    Sketcher.Constraint("DistanceX", -1, 1, 1, 3, 270.0),
    Sketcher.Constraint("DistanceX", -1, 1, 44, 2, 146.7),
    Sketcher.Constraint("DistanceX", -1, 1, 8, 2, 33.57),
    Sketcher.Constraint("DistanceX", -1, 1, 12, 2, 46.14),
    Sketcher.Constraint("DistanceX", -1, 1, 16, 2, 58.71),
    Sketcher.Constraint("DistanceX", -1, 1, 20, 2, 71.28),
    Sketcher.Constraint("DistanceX", -1, 1, 24, 2, 83.85),
    Sketcher.Constraint("DistanceX", -1, 1, 28, 2, 96.42),
    Sketcher.Constraint("DistanceX", -1, 1, 32, 2, 108.99),
    Sketcher.Constraint("DistanceX", -1, 1, 36, 2, 121.56),
    Sketcher.Constraint("DistanceX", -1, 1, 40, 2, 134.13),
    Sketcher.Constraint("DistanceX", -1, 1, 48, 2, 159.27),
    Sketcher.Constraint("DistanceX", -1, 1, 52, 2, 171.84),
    Sketcher.Constraint("DistanceX", -1, 1, 56, 2, 184.41),
    Sketcher.Constraint("DistanceX", -1, 1, 60, 2, 196.98),
    Sketcher.Constraint("DistanceX", -1, 1, 64, 2, 209.55),
    Sketcher.Constraint("DistanceX", -1, 1, 68, 2, 222.12),
    Sketcher.Constraint("DistanceX", -1, 1, 72, 2, 234.69),
    Sketcher.Constraint("DistanceX", -1, 1, 76, 2, 247.26),
    Sketcher.Constraint("DistanceX", -1, 1, 80, 2, 259.83),
])
pocket1 = doc.addObject("PartDesign::Pocket", "Pocket")
body.addObject(pocket1)
pocket1.Profile = sketch2
pocket1.Type = "ThroughAll"

sketch3 = doc.addObject("Sketcher::SketchObject", "Sketch002")
body.addObject(sketch3)
sketch3.AttachmentSupport = (doc.XY_Plane, [""])
sketch3.MapMode = "FlatFace"
sketch3.AttachmentOffset = App.Placement(V(0, 0, 10), App.Rotation())
sketch3.addGeometry([
    Part.Circle(V(138, 55, 0), V(0, 0, 1), 11),
    Part.Circle(V(109, 45, 0), V(0, 0, 1), 11),
    Part.Circle(V(166, 45, 0), V(0, 0, 1), 11),
], False)
sketch3.addConstraint([
    Sketcher.Constraint("Equal", 0, 1),
    Sketcher.Constraint("Equal", 1, 2),
    Sketcher.Constraint("Horizontal", 1, 3, 2, 3),
    Sketcher.Constraint("Diameter", 0, 22.0),
    Sketcher.Constraint("DistanceX", -1, 1, 0, 3, 137.5),
    Sketcher.Constraint("DistanceY", -1, 1, 0, 3, 55.1303),
    Sketcher.Constraint("DistanceX", -1, 1, 1, 3, 109.3092),
    Sketcher.Constraint("DistanceY", -1, 1, 1, 3, 44.8697),
    Sketcher.Constraint("DistanceX", -1, 1, 2, 3, 165.6908),
])
pocket2 = doc.addObject("PartDesign::Pocket", "Pocket001")
body.addObject(pocket2)
pocket2.Profile = sketch3
pocket2.Type = "ThroughAll"

sketch4 = doc.addObject("Sketcher::SketchObject", "Sketch003")
body.addObject(sketch4)
sketch4.AttachmentSupport = (doc.XY_Plane, [""])
sketch4.MapMode = "FlatFace"
sketch4.AttachmentOffset = App.Placement(V(0, 0, 10), App.Rotation())
sketch4.addGeometry([
    Part.ArcOfCircle(Part.Circle(V(138, 55, 0), V(0, 0, 1), 19), math.radians(18), math.radians(162)),
    Part.ArcOfCircle(Part.Circle(V(109, 45, 0), V(0, 0, 1), 19), math.radians(58), math.radians(342)),
    Part.ArcOfCircle(Part.Circle(V(138, 55, 0), V(0, 0, 1), 19), math.radians(-122), math.radians(-58)),
    Part.ArcOfCircle(Part.Circle(V(166, 45, 0), V(0, 0, 1), 19), math.radians(-162), math.radians(122)),
    Part.Circle(V(138, 55, 0), V(0, 0, 1), 11),
    Part.Circle(V(109, 45, 0), V(0, 0, 1), 11),
    Part.Circle(V(166, 45, 0), V(0, 0, 1), 11),
], False)
sketch4.addConstraint([
    Sketcher.Constraint("Coincident", 0, 2, 1, 1),
    Sketcher.Constraint("Coincident", 1, 2, 2, 1),
    Sketcher.Constraint("Coincident", 2, 2, 3, 1),
    Sketcher.Constraint("Coincident", 3, 2, 0, 1),
    Sketcher.Constraint("Coincident", 2, 3, 0, 3),
    Sketcher.Constraint("Coincident", 4, 3, 0, 3),
    Sketcher.Constraint("Coincident", 5, 3, 1, 3),
    Sketcher.Constraint("Coincident", 6, 3, 3, 3),
    Sketcher.Constraint("Equal", 0, 1),
    Sketcher.Constraint("Equal", 1, 2),
    Sketcher.Constraint("Equal", 2, 3),
    Sketcher.Constraint("Equal", 4, 5),
    Sketcher.Constraint("Equal", 5, 6),
    Sketcher.Constraint("Horizontal", 1, 3, 3, 3),
    Sketcher.Constraint("Horizontal", 1, 2, 2, 2),
    Sketcher.Constraint("Diameter", 4, 22.0),
    Sketcher.Constraint("Radius", 0, 19.0),
    Sketcher.Constraint("DistanceX", -1, 1, 0, 3, 137.5),
    Sketcher.Constraint("DistanceX", -1, 1, 0, 2, 119.416),
    Sketcher.Constraint("DistanceY", 1, 3, 0, 2, 16.089),
    Sketcher.Constraint("DistanceY", -1, 1, 0, 3, 55.1303),
])
pad2 = doc.addObject("PartDesign::Pad", "Pad001")
body.addObject(pad2)
pad2.Profile = sketch4
pad2.Length = 10
pad2.Reversed = True

doc.recompute()
